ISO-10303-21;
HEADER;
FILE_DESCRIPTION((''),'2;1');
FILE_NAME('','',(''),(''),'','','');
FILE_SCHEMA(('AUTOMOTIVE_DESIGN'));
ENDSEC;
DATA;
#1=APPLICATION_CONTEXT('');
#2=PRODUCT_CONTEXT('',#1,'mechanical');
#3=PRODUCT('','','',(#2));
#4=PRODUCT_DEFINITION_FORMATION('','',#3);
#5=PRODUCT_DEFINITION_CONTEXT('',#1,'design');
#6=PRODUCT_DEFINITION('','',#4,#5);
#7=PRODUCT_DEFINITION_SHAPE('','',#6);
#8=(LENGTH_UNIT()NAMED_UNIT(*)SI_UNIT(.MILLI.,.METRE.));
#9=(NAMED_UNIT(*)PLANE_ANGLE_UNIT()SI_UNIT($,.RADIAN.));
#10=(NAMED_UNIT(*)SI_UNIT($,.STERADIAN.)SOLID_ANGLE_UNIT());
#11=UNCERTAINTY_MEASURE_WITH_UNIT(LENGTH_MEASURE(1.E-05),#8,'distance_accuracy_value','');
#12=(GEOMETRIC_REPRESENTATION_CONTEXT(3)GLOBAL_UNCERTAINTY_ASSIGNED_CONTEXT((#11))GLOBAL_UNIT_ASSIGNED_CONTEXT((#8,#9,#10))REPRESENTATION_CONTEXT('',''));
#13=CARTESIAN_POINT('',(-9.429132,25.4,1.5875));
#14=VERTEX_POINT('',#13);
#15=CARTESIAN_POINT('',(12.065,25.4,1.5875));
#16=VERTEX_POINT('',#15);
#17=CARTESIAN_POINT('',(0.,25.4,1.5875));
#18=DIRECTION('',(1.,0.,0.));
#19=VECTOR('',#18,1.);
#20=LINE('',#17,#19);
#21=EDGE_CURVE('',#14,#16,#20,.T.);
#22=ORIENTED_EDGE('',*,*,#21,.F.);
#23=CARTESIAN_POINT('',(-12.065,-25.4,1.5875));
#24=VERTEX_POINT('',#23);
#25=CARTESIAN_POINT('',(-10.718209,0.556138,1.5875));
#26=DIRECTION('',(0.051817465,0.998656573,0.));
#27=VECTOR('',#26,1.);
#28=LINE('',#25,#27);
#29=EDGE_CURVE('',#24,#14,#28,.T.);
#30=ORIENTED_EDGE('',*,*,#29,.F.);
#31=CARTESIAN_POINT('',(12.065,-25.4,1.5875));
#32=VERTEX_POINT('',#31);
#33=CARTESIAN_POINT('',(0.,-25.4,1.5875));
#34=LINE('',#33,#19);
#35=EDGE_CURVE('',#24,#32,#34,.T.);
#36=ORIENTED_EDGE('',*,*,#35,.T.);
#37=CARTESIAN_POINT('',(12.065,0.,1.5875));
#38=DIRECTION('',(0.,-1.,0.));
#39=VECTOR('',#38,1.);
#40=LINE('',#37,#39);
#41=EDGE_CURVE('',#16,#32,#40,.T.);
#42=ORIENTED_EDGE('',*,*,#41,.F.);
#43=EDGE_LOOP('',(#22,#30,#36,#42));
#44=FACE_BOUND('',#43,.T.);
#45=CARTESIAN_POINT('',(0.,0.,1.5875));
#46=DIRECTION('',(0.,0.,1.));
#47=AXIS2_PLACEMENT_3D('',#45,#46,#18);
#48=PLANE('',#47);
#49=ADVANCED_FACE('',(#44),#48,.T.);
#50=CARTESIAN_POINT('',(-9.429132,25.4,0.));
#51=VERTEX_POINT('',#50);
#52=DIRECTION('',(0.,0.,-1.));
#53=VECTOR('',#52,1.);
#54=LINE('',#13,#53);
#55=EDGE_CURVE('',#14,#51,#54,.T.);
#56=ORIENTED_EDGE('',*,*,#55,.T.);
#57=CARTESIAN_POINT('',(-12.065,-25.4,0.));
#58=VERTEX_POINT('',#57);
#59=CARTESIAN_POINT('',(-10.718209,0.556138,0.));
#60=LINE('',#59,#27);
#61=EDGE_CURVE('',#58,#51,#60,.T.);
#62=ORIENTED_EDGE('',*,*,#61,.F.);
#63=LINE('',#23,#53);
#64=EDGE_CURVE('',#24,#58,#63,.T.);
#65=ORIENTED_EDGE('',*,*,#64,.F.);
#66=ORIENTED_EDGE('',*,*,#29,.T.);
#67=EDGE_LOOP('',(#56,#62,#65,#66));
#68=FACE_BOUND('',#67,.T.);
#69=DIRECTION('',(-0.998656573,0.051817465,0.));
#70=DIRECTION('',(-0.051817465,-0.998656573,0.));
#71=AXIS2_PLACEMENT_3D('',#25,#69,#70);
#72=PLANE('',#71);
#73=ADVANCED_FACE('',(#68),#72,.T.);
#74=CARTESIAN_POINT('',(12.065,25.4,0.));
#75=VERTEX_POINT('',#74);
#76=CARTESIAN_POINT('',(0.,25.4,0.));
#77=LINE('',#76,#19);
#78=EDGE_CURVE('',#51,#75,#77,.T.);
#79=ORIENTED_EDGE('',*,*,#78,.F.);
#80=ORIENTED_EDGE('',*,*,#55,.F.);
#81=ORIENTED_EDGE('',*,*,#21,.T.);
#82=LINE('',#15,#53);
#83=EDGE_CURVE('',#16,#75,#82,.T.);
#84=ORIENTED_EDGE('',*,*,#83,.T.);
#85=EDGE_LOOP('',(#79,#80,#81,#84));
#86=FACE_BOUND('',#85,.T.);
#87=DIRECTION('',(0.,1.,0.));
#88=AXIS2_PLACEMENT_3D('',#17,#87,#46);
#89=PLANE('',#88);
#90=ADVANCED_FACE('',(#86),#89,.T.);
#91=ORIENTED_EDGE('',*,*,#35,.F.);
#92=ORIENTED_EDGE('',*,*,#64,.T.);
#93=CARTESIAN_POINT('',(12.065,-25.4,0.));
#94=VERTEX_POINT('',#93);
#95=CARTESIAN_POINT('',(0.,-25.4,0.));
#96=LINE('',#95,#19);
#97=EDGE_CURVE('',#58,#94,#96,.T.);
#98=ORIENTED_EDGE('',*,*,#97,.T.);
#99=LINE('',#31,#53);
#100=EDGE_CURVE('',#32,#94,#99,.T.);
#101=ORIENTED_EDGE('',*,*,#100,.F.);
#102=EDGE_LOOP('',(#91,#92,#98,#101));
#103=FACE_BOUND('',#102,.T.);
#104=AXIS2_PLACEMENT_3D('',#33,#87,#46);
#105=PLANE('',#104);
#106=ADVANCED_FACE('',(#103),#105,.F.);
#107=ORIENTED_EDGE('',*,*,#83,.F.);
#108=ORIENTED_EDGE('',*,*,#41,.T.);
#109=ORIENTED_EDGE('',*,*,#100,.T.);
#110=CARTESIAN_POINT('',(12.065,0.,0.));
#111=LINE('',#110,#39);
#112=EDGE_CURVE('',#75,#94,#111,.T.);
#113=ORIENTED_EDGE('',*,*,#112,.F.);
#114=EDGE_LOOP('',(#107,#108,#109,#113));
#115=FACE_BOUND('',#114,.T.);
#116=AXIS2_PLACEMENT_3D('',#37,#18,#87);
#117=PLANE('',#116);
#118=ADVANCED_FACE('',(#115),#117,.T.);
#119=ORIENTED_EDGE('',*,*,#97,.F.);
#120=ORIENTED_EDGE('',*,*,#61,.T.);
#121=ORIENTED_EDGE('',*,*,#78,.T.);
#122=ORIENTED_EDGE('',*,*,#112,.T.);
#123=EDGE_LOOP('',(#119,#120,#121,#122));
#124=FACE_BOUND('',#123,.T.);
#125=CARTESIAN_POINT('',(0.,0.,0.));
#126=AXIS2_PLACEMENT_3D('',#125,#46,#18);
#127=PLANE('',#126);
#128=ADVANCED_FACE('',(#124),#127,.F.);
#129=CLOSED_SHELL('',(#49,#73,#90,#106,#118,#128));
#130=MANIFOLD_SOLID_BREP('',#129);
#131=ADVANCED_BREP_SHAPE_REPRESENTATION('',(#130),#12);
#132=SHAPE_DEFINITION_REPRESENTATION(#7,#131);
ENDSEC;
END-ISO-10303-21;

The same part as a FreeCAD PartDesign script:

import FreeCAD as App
import Part
import Sketcher
from FreeCAD import Vector
Q = App.Units.Quantity

doc = App.newDocument("Part")
body = doc.addObject("PartDesign::Body", "Body")

# Sketch on XY plane
sketch1 = body.newObject("Sketcher::SketchObject", "Sketch")
sketch1.AttachmentSupport = (doc.getObject("XY_Plane"), [""])
sketch1.MapMode = "FlatFace"
sketch1.addGeometry(Part.LineSegment(Vector(-9, 25, 0), Vector(-12, -25, 0)), False)
sketch1.addGeometry(Part.LineSegment(Vector(-12, -25, 0), Vector(12, -25, 0)), False)
sketch1.addGeometry(Part.LineSegment(Vector(12, -25, 0), Vector(12, 25, 0)), False)
sketch1.addGeometry(Part.LineSegment(Vector(12, 25, 0), Vector(-9, 25, 0)), False)
sketch1.addConstraint(Sketcher.Constraint("Coincident", 0, 2, 1, 1))
sketch1.addConstraint(Sketcher.Constraint("Coincident", 1, 2, 2, 1))
sketch1.addConstraint(Sketcher.Constraint("Coincident", 2, 2, 3, 1))
sketch1.addConstraint(Sketcher.Constraint("Coincident", 3, 2, 0, 1))
sketch1.addConstraint(Sketcher.Constraint("Horizontal", 1))
sketch1.addConstraint(Sketcher.Constraint("Vertical", 2))
sketch1.addConstraint(Sketcher.Constraint("Horizontal", 3))
sketch1.addConstraint(Sketcher.Constraint("Symmetric", 0, 2, 2, 2, -1, 1))
sketch1.addConstraint(Sketcher.Constraint("DistanceY", 2, 1, 2, 2, Q("2 in")))
sketch1.addConstraint(Sketcher.Constraint("DistanceX", 1, 1, 1, 2, Q("0.95 in")))
sketch1.addConstraint(Sketcher.Constraint("DistanceX", 3, 2, 3, 1, 21.494132))
pad1 = body.newObject("PartDesign::Pad", "Pad")
pad1.Profile = sketch1
pad1.Length = Q("0.0625 in")

doc.recompute()
